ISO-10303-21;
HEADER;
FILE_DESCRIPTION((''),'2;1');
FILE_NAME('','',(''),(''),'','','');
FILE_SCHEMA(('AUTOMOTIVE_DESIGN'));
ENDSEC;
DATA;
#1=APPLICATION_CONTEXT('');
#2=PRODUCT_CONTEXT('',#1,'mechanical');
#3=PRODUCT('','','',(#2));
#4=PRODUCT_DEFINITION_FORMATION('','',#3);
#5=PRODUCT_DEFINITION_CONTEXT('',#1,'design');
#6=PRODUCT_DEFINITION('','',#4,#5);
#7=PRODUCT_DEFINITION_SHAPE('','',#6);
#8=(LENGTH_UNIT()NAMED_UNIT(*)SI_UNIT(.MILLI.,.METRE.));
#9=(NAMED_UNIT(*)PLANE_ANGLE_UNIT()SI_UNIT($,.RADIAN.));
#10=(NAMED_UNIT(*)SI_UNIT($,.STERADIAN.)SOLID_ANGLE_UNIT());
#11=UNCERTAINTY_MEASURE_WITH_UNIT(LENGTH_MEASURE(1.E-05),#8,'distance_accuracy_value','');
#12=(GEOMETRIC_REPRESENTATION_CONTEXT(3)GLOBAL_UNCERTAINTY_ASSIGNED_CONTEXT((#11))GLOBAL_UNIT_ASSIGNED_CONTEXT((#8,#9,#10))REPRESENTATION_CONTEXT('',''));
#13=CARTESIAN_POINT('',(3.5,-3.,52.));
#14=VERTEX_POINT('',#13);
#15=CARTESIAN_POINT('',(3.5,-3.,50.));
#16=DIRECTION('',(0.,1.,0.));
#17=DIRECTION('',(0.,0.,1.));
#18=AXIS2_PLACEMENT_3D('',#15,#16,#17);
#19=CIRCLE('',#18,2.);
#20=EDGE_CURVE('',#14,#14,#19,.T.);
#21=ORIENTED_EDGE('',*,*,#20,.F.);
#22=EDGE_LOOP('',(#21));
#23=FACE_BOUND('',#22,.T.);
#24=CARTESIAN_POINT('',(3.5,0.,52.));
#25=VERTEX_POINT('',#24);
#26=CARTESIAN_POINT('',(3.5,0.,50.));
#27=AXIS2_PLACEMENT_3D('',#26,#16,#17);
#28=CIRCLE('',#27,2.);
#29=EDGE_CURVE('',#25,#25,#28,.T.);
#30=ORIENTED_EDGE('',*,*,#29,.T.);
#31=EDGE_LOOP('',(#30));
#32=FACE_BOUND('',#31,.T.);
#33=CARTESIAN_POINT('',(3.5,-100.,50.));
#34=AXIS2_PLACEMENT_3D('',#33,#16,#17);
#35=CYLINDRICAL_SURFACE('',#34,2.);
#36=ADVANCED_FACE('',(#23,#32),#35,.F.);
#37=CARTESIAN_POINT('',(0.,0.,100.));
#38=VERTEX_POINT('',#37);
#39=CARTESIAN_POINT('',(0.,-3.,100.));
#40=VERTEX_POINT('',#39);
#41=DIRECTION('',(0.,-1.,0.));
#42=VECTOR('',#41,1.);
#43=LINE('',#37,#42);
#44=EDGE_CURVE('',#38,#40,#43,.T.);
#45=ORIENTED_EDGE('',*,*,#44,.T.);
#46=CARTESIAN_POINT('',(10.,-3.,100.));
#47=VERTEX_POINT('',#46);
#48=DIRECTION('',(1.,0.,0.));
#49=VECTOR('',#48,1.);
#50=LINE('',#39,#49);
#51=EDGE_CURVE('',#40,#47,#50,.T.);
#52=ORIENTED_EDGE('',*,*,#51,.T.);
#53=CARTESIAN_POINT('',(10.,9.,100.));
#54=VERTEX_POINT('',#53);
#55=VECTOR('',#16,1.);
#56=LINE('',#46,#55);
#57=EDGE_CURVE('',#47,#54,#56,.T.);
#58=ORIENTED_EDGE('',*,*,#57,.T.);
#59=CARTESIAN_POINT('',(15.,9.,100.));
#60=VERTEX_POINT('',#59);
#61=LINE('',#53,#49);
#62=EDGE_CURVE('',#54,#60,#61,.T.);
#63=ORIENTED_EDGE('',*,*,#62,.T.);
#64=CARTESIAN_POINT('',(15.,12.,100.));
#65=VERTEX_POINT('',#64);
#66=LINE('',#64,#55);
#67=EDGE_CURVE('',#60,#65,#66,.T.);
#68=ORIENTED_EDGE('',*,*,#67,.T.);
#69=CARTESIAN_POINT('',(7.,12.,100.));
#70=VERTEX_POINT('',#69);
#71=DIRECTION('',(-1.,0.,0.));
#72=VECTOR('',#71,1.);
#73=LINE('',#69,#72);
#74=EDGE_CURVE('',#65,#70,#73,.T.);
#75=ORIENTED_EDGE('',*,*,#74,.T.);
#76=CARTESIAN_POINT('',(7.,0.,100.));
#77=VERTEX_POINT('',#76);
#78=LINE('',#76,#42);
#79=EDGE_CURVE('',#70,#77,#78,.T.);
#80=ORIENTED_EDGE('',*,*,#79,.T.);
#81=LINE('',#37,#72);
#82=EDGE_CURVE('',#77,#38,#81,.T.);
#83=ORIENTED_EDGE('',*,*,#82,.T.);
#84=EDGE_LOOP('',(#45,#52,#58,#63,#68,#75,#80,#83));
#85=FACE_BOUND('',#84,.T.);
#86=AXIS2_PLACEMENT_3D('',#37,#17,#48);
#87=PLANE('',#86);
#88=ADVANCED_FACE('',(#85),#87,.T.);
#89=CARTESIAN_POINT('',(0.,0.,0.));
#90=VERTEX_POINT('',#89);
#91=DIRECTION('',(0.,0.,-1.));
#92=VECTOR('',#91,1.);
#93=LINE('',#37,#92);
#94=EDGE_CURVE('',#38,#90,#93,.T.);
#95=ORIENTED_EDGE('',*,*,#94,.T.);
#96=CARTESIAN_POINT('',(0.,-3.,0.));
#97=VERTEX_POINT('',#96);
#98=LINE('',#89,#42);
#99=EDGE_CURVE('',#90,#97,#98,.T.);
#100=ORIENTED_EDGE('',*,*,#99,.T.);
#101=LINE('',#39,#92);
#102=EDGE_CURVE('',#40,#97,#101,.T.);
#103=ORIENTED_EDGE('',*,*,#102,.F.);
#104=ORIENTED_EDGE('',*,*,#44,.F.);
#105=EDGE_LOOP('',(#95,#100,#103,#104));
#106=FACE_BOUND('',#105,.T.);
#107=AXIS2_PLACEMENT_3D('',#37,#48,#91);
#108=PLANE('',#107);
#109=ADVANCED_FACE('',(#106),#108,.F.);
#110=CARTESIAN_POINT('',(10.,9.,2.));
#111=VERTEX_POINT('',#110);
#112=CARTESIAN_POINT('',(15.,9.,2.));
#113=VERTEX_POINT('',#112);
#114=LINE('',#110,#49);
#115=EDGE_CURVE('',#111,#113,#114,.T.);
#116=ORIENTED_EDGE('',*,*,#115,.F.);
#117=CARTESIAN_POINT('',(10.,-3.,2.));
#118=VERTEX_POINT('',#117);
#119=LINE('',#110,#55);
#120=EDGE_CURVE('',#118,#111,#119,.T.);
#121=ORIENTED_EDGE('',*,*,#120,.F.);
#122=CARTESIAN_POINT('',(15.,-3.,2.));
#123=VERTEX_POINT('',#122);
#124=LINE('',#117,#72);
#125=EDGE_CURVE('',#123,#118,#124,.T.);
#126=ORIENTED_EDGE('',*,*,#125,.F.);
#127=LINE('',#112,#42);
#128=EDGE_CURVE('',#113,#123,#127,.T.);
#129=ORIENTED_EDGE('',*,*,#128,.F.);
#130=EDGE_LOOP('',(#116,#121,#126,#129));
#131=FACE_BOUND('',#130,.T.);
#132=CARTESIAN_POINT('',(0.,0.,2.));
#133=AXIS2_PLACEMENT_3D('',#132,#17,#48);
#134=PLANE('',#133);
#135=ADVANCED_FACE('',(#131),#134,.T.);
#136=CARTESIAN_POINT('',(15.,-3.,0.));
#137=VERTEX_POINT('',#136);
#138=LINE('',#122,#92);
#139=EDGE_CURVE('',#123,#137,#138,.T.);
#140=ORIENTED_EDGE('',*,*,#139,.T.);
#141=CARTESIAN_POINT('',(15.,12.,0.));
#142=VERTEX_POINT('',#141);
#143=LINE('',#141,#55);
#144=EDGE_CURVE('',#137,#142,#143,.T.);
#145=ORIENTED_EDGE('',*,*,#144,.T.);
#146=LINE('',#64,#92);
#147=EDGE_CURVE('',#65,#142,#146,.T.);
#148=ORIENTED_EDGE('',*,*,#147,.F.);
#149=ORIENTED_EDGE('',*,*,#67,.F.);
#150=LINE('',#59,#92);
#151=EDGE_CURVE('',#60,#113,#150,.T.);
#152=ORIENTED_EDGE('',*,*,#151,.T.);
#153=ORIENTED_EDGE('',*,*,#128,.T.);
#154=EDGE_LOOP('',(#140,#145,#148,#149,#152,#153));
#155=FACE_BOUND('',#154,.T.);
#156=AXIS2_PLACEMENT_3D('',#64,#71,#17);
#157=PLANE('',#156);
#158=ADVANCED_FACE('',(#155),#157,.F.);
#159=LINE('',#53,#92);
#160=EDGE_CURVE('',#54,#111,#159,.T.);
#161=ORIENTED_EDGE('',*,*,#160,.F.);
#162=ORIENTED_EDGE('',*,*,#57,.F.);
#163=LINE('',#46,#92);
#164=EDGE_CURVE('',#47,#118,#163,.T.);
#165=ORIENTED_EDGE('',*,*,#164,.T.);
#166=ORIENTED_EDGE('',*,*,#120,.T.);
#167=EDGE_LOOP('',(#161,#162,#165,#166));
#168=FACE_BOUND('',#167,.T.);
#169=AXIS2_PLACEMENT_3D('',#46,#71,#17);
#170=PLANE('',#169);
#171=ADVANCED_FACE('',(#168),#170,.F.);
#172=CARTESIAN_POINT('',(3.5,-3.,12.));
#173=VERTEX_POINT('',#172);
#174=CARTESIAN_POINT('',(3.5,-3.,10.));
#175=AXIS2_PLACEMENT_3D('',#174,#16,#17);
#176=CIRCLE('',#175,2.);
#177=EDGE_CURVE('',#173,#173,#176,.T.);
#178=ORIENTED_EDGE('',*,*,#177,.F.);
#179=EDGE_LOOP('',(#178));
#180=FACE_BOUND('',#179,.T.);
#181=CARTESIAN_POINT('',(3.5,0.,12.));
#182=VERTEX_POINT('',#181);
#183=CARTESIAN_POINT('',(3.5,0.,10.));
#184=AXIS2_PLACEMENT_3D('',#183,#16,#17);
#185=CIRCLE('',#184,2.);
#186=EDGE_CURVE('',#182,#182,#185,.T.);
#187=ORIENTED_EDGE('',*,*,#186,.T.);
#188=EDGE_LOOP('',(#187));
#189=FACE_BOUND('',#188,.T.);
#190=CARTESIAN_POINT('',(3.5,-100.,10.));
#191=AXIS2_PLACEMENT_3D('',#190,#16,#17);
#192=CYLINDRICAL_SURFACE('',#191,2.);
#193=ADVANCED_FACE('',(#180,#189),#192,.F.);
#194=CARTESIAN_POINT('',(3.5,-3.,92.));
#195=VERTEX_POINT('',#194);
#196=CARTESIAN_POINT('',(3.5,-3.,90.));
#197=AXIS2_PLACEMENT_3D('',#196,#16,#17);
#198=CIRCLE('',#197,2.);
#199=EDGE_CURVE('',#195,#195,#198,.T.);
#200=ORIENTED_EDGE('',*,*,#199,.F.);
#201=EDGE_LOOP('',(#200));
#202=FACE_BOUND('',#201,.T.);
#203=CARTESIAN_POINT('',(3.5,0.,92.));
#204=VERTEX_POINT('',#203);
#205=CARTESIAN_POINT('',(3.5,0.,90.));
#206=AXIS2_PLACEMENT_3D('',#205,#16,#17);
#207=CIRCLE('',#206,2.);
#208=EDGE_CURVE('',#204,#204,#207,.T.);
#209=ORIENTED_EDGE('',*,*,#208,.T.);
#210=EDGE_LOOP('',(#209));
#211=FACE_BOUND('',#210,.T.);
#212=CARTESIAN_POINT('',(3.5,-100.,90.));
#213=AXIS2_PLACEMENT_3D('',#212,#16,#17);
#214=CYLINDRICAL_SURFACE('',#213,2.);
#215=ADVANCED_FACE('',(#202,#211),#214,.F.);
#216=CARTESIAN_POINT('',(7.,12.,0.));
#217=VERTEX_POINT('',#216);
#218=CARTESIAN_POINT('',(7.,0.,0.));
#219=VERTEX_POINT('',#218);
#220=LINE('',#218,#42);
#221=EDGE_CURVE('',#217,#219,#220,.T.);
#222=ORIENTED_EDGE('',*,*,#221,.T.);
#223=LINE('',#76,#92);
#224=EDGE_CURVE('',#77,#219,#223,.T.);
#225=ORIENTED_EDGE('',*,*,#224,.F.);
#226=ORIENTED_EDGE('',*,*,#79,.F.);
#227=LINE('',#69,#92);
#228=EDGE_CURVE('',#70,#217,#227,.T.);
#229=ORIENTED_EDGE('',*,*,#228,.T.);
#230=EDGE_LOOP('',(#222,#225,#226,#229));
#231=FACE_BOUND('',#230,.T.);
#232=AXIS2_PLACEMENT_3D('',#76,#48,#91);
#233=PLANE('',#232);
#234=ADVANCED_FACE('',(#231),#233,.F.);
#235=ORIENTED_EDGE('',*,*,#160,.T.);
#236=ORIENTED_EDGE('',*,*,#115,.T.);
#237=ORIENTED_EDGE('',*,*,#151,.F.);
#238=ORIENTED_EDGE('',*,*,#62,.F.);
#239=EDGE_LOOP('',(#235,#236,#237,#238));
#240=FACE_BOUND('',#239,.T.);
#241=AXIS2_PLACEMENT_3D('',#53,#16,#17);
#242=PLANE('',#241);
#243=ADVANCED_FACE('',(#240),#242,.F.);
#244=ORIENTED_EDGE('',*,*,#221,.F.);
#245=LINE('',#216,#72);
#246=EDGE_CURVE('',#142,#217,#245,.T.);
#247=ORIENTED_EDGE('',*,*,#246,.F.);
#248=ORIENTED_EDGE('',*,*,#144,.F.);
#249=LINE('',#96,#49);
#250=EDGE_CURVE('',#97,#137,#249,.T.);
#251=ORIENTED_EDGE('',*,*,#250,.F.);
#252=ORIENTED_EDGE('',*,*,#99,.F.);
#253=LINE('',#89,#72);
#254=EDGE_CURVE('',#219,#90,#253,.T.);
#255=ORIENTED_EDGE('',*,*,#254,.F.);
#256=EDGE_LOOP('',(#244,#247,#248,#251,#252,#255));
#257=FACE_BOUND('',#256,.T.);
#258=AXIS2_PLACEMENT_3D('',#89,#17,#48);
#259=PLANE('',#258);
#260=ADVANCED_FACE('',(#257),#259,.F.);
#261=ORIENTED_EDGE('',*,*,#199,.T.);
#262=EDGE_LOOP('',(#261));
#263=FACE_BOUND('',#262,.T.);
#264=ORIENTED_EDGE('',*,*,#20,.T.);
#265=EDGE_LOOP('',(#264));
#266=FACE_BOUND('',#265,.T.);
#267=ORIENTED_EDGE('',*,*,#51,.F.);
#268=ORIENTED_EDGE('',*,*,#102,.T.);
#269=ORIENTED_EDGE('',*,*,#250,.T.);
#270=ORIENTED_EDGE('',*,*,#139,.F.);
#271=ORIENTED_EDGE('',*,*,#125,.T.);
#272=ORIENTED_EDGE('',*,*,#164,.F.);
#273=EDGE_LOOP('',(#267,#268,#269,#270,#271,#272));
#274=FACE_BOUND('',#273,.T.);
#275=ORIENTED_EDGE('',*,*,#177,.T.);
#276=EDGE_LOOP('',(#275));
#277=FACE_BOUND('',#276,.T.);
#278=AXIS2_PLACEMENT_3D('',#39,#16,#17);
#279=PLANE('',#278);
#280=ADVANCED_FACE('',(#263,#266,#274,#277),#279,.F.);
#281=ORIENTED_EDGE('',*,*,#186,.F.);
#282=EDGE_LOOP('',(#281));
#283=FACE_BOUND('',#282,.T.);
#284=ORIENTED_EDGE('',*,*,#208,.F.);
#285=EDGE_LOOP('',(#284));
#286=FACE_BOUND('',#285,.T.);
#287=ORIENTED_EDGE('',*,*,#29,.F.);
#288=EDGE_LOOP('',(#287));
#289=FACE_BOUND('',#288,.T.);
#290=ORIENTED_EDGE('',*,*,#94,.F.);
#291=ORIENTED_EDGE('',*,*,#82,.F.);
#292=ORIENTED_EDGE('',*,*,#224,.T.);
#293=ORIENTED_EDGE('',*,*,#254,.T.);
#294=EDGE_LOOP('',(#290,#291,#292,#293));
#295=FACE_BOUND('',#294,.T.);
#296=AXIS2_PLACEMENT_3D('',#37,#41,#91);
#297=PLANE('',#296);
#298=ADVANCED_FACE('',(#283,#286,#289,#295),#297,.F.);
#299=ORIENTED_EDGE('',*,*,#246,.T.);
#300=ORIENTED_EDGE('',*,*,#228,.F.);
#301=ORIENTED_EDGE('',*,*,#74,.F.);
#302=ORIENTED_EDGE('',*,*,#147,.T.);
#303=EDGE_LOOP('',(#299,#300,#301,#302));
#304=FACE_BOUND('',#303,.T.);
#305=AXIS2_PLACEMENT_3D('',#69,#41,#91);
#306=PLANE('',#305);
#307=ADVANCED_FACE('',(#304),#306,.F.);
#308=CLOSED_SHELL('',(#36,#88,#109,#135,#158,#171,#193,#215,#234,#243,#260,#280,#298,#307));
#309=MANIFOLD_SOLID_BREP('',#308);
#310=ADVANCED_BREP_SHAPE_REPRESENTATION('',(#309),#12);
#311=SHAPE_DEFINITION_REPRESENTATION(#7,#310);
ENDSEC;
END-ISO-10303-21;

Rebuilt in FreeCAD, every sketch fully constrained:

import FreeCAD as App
import Part
import Sketcher

V = App.Vector


def add_polygon(sketch, points):
    """Adds a closed chain of lines whose ends are joined by coincident constraints."""
    first, n = sketch.GeometryCount, len(points)
    for a, b in zip(points, points[1:] + points[:1]):
        sketch.addGeometry(Part.LineSegment(App.Vector(*a, 0), App.Vector(*b, 0)), False)
    for i in range(n):
        sketch.addConstraint(Sketcher.Constraint("Coincident", first + i, 2, first + (i + 1) % n, 1))

doc = App.newDocument("Part")
body = doc.addObject("PartDesign::Body", "Body")

# Sketch on XY plane
sketch1 = doc.addObject("Sketcher::SketchObject", "Sketch")
body.addObject(sketch1)
sketch1.AttachmentSupport = (doc.XY_Plane, [""])
sketch1.MapMode = "FlatFace"
add_polygon(sketch1, [(7, 0), (0, 0), (0, -3), (10, -3), (10, 9), (15, 9), (15, 12), (7, 12)])  # lines 0-7
sketch1.addConstraint([
    Sketcher.Constraint("Horizontal", 0),
    Sketcher.Constraint("Vertical", 1),
    Sketcher.Constraint("Horizontal", 2),
    Sketcher.Constraint("Vertical", 3),
    Sketcher.Constraint("Horizontal", 4),
    Sketcher.Constraint("Vertical", 5),
    Sketcher.Constraint("Horizontal", 6),
    Sketcher.Constraint("Vertical", 7),
    Sketcher.Constraint("Coincident", 0, 2, -1, 1),
    Sketcher.Constraint("Equal", 1, 5),
    Sketcher.Constraint("DistanceX", 0, 2, 0, 1, 7.0),
    Sketcher.Constraint("DistanceX", 2, 1, 2, 2, 10.0),
    Sketcher.Constraint("DistanceX", 4, 1, 4, 2, 5.0),
    Sketcher.Constraint("DistanceY", 1, 2, 1, 1, 3.0),
    Sketcher.Constraint("DistanceY", 3, 1, 3, 2, 12.0),
])
pad1 = doc.addObject("PartDesign::Pad", "Pad")
body.addObject(pad1)
pad1.Profile = sketch1
pad1.Length = 100

# Sketch on XZ plane
sketch2 = doc.addObject("Sketcher::SketchObject", "Sketch001")
body.addObject(sketch2)
sketch2.AttachmentSupport = (doc.XZ_Plane, [""])
sketch2.MapMode = "FlatFace"
sketch2.addGeometry([
    Part.Circle(V(3.5, 10, 0), V(0, 0, 1), 2),
    Part.Circle(V(3.5, 90, 0), V(0, 0, 1), 2),
    Part.Circle(V(3.5, 50, 0), V(0, 0, 1), 2),
], False)
sketch2.addConstraint([
    Sketcher.Constraint("Equal", 0, 1),
    Sketcher.Constraint("Equal", 1, 2),
    Sketcher.Constraint("Vertical", 0, 3, 1, 3),
    Sketcher.Constraint("Vertical", 1, 3, 2, 3),
    Sketcher.Constraint("Diameter", 0, 4.0),
    Sketcher.Constraint("DistanceY", -1, 1, 0, 3, 10.0),
    Sketcher.Constraint("DistanceY", -1, 1, 1, 3, 90.0),
    Sketcher.Constraint("DistanceY", -1, 1, 2, 3, 50.0),
    Sketcher.Constraint("DistanceX", -1, 1, 0, 3, 3.5),
])
pocket1 = doc.addObject("PartDesign::Pocket", "Pocket")
body.addObject(pocket1)
pocket1.Profile = sketch2
pocket1.Length = 100
pocket1.Reversed = True

# Sketch on XY plane
sketch3 = doc.addObject("Sketcher::SketchObject", "Sketch002")
body.addObject(sketch3)
sketch3.AttachmentSupport = (doc.XY_Plane, [""])
sketch3.MapMode = "FlatFace"
add_polygon(sketch3, [(15, 9), (15, -3), (10, -3), (10, 9)])  # lines 0-3
sketch3.addConstraint([
    Sketcher.Constraint("Vertical", 0),
    Sketcher.Constraint("Horizontal", 1),
    Sketcher.Constraint("Vertical", 2),
    Sketcher.Constraint("Horizontal", 3),
    Sketcher.Constraint("DistanceX", 1, 2, 1, 1, 5.0),
    Sketcher.Constraint("DistanceY", 0, 2, 0, 1, 12.0),
    Sketcher.Constraint("DistanceX", -1, 1, 0, 2, 15.0),
    Sketcher.Constraint("DistanceY", 0, 2, -1, 1, 3.0),
])
pad2 = doc.addObject("PartDesign::Pad", "Pad001")
body.addObject(pad2)
pad2.Profile = sketch3
pad2.Length = 2

doc.recompute()
